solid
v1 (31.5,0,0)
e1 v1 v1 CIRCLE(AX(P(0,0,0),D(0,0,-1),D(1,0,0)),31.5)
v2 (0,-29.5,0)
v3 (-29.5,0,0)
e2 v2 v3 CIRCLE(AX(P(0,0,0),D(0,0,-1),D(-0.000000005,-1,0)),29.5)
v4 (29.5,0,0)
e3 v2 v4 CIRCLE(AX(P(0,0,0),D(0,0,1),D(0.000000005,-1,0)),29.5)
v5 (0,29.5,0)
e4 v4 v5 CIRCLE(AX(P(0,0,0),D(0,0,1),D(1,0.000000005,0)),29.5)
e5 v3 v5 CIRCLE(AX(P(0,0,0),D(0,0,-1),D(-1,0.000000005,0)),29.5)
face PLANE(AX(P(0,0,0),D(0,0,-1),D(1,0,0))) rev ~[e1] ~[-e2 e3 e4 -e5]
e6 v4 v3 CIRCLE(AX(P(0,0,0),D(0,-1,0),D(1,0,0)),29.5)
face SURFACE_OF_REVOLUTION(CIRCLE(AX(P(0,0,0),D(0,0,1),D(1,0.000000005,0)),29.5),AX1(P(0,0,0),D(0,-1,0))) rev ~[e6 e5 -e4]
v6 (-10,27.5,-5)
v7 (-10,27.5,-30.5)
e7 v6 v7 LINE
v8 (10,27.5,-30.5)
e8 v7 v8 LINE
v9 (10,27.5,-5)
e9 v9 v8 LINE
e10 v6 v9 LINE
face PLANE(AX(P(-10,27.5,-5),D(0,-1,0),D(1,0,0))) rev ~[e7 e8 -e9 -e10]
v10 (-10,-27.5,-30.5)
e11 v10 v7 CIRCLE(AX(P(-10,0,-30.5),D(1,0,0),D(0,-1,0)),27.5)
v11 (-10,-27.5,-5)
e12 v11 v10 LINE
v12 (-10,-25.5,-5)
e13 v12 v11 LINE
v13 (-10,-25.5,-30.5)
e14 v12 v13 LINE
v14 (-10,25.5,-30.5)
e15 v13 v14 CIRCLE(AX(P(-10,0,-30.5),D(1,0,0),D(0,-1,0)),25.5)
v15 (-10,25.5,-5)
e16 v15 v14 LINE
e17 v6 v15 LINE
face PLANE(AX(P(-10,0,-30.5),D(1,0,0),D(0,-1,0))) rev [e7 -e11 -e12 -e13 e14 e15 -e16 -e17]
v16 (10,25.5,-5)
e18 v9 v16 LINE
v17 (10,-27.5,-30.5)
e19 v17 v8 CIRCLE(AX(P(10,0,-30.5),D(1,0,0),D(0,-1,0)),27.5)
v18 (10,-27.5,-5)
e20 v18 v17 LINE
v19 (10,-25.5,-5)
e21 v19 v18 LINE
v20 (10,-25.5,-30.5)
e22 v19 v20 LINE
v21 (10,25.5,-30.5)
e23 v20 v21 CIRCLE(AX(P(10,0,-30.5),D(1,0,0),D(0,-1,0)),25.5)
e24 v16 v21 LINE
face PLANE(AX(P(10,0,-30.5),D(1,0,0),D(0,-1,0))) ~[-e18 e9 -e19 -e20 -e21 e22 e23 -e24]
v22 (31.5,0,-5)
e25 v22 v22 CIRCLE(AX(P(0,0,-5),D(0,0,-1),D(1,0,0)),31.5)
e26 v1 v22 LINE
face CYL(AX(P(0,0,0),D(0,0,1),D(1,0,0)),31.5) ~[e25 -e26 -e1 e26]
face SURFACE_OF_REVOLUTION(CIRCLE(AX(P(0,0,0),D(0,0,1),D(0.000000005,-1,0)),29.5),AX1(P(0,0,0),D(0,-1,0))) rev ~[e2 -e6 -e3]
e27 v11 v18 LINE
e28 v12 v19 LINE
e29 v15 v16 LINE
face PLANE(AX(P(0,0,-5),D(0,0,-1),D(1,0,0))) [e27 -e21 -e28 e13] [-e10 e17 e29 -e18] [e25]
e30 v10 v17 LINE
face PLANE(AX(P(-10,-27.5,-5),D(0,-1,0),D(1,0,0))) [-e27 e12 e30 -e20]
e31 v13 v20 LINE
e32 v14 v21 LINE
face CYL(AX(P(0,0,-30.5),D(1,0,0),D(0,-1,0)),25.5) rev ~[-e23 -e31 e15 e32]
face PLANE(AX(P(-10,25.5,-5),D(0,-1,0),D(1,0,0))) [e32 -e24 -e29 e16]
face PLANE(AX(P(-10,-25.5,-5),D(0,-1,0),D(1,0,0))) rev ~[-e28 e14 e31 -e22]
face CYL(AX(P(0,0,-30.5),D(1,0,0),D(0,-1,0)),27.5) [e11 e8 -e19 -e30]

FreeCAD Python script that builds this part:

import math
import FreeCAD as App
import Part
import Sketcher

V = App.Vector
Q = App.Units.Quantity


def add_polygon(sketch, points):
    """Adds a closed chain of lines whose ends are joined by coincident constraints."""
    first, n = sketch.GeometryCount, len(points)
    for a, b in zip(points, points[1:] + points[:1]):
        sketch.addGeometry(Part.LineSegment(App.Vector(*a, 0), App.Vector(*b, 0)), False)
    for i in range(n):
        sketch.addConstraint(Sketcher.Constraint("Coincident", first + i, 2, first + (i + 1) % n, 1))

doc = App.newDocument("Part")
body = doc.addObject("PartDesign::Body", "Body")

# Sketch on XY plane
sketch1 = body.newObject("Sketcher::SketchObject", "Sketch")
sketch1.AttachmentSupport = (doc.getObject("XY_Plane"), [""])
sketch1.MapMode = "FlatFace"
sketch1.addGeometry(Part.ArcOfCircle(Part.Circle(V(0, 0, 0), V(0, 0, 1), 29.5), math.radians(-90), math.radians(0)), False)
sketch1.addGeometry(Part.ArcOfCircle(Part.Circle(V(0, 0, 0), V(0, 0, 1), 29.5), math.radians(0), math.radians(90)), False)
sketch1.addGeometry(Part.LineSegment(V(0, 29.5, 0), V(0, -29.5, 0)), False)
sketch1.addConstraint(Sketcher.Constraint("Tangent", 0, 2, 1, 1))
sketch1.addConstraint(Sketcher.Constraint("Coincident", 1, 2, 2, 1))
sketch1.addConstraint(Sketcher.Constraint("Coincident", 2, 2, 0, 1))
sketch1.addConstraint(Sketcher.Constraint("Vertical", 2))
sketch1.addConstraint(Sketcher.Constraint("Coincident", 0, 3, -1, 1))
sketch1.addConstraint(Sketcher.Constraint("Equal", 0, 1))
sketch1.addConstraint(Sketcher.Constraint("PointOnObject", 0, 2, -1))
sketch1.addConstraint(Sketcher.Constraint("PointOnObject", 1, 2, -2))
sketch1.addConstraint(Sketcher.Constraint("Radius", 0, Q("29.5 mm")))
revolution = body.newObject("PartDesign::Revolution", "Revolution")
revolution.Profile = sketch1
revolution.ReferenceAxis = (sketch1, ["V_Axis"])
revolution.Angle = 180
revolution.Reversed = True

# Sketch on XY plane
sketch2 = body.newObject("Sketcher::SketchObject", "Sketch001")
sketch2.AttachmentSupport = (doc.getObject("XY_Plane"), [""])
sketch2.MapMode = "FlatFace"
sketch2.addGeometry(Part.Circle(V(0, 0, 0), V(0, 0, 1), 31.5), False)
sketch2.addConstraint(Sketcher.Constraint("Coincident", 0, 3, -1, 1))
sketch2.addConstraint(Sketcher.Constraint("Diameter", 0, Q("63 mm")))
pad1 = body.newObject("PartDesign::Pad", "Pad")
pad1.Profile = sketch2
pad1.Length = 5
pad1.Reversed = True

# Sketch on XY plane
sketch3 = body.newObject("Sketcher::SketchObject", "Sketch002")
sketch3.AttachmentSupport = (doc.getObject("XY_Plane"), [""])
sketch3.MapMode = "FlatFace"
sketch3.AttachmentOffset = App.Placement(V(0, 0, -5), App.Rotation())
add_polygon(sketch3, [(-10, -27.5), (-10, -25.5), (10, -25.5), (10, -27.5)])  # lines 0-3
add_polygon(sketch3, [(-10, 25.5), (-10, 27.5), (10, 27.5), (10, 25.5)])  # lines 4-7
sketch3.addConstraint(Sketcher.Constraint("Vertical", 0))
sketch3.addConstraint(Sketcher.Constraint("Horizontal", 1))
sketch3.addConstraint(Sketcher.Constraint("Vertical", 2))
sketch3.addConstraint(Sketcher.Constraint("Horizontal", 3))
sketch3.addConstraint(Sketcher.Constraint("Vertical", 4))
sketch3.addConstraint(Sketcher.Constraint("Horizontal", 5))
sketch3.addConstraint(Sketcher.Constraint("Vertical", 6))
sketch3.addConstraint(Sketcher.Constraint("Horizontal", 7))
sketch3.addConstraint(Sketcher.Constraint("Symmetric", 2, 2, 4, 2, -1, 1))
sketch3.addConstraint(Sketcher.Constraint("Symmetric", 0, 2, 6, 2, -1, 1))
sketch3.addConstraint(Sketcher.Constraint("Vertical", 3, 2, 4, 2))
sketch3.addConstraint(Sketcher.Constraint("DistanceX", 1, 1, 1, 2, Q("20 mm")))
sketch3.addConstraint(Sketcher.Constraint("DistanceY", 0, 1, 0, 2, Q("2 mm")))
sketch3.addConstraint(Sketcher.Constraint("DistanceY", 0, 2, 4, 2, Q("53 mm")))
pad2 = body.newObject("PartDesign::Pad", "Pad001")
pad2.Profile = sketch3
pad2.Length = 25.5
pad2.Reversed = True

# Sketch on XY plane
sketch4 = body.newObject("Sketcher::SketchObject", "Sketch003")
sketch4.AttachmentSupport = (doc.getObject("XY_Plane"), [""])
sketch4.MapMode = "FlatFace"
sketch4.AttachmentOffset = App.Placement(V(0, 0, -30.5), App.Rotation())
add_polygon(sketch4, [(-10, -27.5), (-10, -25.5), (10, -25.5), (10, -27.5)])  # lines 0-3
sketch4.addConstraint(Sketcher.Constraint("Vertical", 0))
sketch4.addConstraint(Sketcher.Constraint("Horizontal", 1))
sketch4.addConstraint(Sketcher.Constraint("Vertical", 2))
sketch4.addConstraint(Sketcher.Constraint("Horizontal", 3))
sketch4.addConstraint(Sketcher.Constraint("DistanceX", 1, 1, 1, 2, Q("20 mm")))
sketch4.addConstraint(Sketcher.Constraint("DistanceY", 0, 1, 0, 2, Q("2 mm")))
sketch4.addConstraint(Sketcher.Constraint("DistanceX", 0, 2, -1, 1, Q("10 mm")))
sketch4.addConstraint(Sketcher.Constraint("DistanceY", 0, 2, -1, 1, Q("25.5 mm")))
revolution2 = body.newObject("PartDesign::Revolution", "Revolution001")
revolution2.Profile = sketch4
revolution2.ReferenceAxis = (sketch4, ["H_Axis"])
revolution2.Angle = 180

doc.recompute()
